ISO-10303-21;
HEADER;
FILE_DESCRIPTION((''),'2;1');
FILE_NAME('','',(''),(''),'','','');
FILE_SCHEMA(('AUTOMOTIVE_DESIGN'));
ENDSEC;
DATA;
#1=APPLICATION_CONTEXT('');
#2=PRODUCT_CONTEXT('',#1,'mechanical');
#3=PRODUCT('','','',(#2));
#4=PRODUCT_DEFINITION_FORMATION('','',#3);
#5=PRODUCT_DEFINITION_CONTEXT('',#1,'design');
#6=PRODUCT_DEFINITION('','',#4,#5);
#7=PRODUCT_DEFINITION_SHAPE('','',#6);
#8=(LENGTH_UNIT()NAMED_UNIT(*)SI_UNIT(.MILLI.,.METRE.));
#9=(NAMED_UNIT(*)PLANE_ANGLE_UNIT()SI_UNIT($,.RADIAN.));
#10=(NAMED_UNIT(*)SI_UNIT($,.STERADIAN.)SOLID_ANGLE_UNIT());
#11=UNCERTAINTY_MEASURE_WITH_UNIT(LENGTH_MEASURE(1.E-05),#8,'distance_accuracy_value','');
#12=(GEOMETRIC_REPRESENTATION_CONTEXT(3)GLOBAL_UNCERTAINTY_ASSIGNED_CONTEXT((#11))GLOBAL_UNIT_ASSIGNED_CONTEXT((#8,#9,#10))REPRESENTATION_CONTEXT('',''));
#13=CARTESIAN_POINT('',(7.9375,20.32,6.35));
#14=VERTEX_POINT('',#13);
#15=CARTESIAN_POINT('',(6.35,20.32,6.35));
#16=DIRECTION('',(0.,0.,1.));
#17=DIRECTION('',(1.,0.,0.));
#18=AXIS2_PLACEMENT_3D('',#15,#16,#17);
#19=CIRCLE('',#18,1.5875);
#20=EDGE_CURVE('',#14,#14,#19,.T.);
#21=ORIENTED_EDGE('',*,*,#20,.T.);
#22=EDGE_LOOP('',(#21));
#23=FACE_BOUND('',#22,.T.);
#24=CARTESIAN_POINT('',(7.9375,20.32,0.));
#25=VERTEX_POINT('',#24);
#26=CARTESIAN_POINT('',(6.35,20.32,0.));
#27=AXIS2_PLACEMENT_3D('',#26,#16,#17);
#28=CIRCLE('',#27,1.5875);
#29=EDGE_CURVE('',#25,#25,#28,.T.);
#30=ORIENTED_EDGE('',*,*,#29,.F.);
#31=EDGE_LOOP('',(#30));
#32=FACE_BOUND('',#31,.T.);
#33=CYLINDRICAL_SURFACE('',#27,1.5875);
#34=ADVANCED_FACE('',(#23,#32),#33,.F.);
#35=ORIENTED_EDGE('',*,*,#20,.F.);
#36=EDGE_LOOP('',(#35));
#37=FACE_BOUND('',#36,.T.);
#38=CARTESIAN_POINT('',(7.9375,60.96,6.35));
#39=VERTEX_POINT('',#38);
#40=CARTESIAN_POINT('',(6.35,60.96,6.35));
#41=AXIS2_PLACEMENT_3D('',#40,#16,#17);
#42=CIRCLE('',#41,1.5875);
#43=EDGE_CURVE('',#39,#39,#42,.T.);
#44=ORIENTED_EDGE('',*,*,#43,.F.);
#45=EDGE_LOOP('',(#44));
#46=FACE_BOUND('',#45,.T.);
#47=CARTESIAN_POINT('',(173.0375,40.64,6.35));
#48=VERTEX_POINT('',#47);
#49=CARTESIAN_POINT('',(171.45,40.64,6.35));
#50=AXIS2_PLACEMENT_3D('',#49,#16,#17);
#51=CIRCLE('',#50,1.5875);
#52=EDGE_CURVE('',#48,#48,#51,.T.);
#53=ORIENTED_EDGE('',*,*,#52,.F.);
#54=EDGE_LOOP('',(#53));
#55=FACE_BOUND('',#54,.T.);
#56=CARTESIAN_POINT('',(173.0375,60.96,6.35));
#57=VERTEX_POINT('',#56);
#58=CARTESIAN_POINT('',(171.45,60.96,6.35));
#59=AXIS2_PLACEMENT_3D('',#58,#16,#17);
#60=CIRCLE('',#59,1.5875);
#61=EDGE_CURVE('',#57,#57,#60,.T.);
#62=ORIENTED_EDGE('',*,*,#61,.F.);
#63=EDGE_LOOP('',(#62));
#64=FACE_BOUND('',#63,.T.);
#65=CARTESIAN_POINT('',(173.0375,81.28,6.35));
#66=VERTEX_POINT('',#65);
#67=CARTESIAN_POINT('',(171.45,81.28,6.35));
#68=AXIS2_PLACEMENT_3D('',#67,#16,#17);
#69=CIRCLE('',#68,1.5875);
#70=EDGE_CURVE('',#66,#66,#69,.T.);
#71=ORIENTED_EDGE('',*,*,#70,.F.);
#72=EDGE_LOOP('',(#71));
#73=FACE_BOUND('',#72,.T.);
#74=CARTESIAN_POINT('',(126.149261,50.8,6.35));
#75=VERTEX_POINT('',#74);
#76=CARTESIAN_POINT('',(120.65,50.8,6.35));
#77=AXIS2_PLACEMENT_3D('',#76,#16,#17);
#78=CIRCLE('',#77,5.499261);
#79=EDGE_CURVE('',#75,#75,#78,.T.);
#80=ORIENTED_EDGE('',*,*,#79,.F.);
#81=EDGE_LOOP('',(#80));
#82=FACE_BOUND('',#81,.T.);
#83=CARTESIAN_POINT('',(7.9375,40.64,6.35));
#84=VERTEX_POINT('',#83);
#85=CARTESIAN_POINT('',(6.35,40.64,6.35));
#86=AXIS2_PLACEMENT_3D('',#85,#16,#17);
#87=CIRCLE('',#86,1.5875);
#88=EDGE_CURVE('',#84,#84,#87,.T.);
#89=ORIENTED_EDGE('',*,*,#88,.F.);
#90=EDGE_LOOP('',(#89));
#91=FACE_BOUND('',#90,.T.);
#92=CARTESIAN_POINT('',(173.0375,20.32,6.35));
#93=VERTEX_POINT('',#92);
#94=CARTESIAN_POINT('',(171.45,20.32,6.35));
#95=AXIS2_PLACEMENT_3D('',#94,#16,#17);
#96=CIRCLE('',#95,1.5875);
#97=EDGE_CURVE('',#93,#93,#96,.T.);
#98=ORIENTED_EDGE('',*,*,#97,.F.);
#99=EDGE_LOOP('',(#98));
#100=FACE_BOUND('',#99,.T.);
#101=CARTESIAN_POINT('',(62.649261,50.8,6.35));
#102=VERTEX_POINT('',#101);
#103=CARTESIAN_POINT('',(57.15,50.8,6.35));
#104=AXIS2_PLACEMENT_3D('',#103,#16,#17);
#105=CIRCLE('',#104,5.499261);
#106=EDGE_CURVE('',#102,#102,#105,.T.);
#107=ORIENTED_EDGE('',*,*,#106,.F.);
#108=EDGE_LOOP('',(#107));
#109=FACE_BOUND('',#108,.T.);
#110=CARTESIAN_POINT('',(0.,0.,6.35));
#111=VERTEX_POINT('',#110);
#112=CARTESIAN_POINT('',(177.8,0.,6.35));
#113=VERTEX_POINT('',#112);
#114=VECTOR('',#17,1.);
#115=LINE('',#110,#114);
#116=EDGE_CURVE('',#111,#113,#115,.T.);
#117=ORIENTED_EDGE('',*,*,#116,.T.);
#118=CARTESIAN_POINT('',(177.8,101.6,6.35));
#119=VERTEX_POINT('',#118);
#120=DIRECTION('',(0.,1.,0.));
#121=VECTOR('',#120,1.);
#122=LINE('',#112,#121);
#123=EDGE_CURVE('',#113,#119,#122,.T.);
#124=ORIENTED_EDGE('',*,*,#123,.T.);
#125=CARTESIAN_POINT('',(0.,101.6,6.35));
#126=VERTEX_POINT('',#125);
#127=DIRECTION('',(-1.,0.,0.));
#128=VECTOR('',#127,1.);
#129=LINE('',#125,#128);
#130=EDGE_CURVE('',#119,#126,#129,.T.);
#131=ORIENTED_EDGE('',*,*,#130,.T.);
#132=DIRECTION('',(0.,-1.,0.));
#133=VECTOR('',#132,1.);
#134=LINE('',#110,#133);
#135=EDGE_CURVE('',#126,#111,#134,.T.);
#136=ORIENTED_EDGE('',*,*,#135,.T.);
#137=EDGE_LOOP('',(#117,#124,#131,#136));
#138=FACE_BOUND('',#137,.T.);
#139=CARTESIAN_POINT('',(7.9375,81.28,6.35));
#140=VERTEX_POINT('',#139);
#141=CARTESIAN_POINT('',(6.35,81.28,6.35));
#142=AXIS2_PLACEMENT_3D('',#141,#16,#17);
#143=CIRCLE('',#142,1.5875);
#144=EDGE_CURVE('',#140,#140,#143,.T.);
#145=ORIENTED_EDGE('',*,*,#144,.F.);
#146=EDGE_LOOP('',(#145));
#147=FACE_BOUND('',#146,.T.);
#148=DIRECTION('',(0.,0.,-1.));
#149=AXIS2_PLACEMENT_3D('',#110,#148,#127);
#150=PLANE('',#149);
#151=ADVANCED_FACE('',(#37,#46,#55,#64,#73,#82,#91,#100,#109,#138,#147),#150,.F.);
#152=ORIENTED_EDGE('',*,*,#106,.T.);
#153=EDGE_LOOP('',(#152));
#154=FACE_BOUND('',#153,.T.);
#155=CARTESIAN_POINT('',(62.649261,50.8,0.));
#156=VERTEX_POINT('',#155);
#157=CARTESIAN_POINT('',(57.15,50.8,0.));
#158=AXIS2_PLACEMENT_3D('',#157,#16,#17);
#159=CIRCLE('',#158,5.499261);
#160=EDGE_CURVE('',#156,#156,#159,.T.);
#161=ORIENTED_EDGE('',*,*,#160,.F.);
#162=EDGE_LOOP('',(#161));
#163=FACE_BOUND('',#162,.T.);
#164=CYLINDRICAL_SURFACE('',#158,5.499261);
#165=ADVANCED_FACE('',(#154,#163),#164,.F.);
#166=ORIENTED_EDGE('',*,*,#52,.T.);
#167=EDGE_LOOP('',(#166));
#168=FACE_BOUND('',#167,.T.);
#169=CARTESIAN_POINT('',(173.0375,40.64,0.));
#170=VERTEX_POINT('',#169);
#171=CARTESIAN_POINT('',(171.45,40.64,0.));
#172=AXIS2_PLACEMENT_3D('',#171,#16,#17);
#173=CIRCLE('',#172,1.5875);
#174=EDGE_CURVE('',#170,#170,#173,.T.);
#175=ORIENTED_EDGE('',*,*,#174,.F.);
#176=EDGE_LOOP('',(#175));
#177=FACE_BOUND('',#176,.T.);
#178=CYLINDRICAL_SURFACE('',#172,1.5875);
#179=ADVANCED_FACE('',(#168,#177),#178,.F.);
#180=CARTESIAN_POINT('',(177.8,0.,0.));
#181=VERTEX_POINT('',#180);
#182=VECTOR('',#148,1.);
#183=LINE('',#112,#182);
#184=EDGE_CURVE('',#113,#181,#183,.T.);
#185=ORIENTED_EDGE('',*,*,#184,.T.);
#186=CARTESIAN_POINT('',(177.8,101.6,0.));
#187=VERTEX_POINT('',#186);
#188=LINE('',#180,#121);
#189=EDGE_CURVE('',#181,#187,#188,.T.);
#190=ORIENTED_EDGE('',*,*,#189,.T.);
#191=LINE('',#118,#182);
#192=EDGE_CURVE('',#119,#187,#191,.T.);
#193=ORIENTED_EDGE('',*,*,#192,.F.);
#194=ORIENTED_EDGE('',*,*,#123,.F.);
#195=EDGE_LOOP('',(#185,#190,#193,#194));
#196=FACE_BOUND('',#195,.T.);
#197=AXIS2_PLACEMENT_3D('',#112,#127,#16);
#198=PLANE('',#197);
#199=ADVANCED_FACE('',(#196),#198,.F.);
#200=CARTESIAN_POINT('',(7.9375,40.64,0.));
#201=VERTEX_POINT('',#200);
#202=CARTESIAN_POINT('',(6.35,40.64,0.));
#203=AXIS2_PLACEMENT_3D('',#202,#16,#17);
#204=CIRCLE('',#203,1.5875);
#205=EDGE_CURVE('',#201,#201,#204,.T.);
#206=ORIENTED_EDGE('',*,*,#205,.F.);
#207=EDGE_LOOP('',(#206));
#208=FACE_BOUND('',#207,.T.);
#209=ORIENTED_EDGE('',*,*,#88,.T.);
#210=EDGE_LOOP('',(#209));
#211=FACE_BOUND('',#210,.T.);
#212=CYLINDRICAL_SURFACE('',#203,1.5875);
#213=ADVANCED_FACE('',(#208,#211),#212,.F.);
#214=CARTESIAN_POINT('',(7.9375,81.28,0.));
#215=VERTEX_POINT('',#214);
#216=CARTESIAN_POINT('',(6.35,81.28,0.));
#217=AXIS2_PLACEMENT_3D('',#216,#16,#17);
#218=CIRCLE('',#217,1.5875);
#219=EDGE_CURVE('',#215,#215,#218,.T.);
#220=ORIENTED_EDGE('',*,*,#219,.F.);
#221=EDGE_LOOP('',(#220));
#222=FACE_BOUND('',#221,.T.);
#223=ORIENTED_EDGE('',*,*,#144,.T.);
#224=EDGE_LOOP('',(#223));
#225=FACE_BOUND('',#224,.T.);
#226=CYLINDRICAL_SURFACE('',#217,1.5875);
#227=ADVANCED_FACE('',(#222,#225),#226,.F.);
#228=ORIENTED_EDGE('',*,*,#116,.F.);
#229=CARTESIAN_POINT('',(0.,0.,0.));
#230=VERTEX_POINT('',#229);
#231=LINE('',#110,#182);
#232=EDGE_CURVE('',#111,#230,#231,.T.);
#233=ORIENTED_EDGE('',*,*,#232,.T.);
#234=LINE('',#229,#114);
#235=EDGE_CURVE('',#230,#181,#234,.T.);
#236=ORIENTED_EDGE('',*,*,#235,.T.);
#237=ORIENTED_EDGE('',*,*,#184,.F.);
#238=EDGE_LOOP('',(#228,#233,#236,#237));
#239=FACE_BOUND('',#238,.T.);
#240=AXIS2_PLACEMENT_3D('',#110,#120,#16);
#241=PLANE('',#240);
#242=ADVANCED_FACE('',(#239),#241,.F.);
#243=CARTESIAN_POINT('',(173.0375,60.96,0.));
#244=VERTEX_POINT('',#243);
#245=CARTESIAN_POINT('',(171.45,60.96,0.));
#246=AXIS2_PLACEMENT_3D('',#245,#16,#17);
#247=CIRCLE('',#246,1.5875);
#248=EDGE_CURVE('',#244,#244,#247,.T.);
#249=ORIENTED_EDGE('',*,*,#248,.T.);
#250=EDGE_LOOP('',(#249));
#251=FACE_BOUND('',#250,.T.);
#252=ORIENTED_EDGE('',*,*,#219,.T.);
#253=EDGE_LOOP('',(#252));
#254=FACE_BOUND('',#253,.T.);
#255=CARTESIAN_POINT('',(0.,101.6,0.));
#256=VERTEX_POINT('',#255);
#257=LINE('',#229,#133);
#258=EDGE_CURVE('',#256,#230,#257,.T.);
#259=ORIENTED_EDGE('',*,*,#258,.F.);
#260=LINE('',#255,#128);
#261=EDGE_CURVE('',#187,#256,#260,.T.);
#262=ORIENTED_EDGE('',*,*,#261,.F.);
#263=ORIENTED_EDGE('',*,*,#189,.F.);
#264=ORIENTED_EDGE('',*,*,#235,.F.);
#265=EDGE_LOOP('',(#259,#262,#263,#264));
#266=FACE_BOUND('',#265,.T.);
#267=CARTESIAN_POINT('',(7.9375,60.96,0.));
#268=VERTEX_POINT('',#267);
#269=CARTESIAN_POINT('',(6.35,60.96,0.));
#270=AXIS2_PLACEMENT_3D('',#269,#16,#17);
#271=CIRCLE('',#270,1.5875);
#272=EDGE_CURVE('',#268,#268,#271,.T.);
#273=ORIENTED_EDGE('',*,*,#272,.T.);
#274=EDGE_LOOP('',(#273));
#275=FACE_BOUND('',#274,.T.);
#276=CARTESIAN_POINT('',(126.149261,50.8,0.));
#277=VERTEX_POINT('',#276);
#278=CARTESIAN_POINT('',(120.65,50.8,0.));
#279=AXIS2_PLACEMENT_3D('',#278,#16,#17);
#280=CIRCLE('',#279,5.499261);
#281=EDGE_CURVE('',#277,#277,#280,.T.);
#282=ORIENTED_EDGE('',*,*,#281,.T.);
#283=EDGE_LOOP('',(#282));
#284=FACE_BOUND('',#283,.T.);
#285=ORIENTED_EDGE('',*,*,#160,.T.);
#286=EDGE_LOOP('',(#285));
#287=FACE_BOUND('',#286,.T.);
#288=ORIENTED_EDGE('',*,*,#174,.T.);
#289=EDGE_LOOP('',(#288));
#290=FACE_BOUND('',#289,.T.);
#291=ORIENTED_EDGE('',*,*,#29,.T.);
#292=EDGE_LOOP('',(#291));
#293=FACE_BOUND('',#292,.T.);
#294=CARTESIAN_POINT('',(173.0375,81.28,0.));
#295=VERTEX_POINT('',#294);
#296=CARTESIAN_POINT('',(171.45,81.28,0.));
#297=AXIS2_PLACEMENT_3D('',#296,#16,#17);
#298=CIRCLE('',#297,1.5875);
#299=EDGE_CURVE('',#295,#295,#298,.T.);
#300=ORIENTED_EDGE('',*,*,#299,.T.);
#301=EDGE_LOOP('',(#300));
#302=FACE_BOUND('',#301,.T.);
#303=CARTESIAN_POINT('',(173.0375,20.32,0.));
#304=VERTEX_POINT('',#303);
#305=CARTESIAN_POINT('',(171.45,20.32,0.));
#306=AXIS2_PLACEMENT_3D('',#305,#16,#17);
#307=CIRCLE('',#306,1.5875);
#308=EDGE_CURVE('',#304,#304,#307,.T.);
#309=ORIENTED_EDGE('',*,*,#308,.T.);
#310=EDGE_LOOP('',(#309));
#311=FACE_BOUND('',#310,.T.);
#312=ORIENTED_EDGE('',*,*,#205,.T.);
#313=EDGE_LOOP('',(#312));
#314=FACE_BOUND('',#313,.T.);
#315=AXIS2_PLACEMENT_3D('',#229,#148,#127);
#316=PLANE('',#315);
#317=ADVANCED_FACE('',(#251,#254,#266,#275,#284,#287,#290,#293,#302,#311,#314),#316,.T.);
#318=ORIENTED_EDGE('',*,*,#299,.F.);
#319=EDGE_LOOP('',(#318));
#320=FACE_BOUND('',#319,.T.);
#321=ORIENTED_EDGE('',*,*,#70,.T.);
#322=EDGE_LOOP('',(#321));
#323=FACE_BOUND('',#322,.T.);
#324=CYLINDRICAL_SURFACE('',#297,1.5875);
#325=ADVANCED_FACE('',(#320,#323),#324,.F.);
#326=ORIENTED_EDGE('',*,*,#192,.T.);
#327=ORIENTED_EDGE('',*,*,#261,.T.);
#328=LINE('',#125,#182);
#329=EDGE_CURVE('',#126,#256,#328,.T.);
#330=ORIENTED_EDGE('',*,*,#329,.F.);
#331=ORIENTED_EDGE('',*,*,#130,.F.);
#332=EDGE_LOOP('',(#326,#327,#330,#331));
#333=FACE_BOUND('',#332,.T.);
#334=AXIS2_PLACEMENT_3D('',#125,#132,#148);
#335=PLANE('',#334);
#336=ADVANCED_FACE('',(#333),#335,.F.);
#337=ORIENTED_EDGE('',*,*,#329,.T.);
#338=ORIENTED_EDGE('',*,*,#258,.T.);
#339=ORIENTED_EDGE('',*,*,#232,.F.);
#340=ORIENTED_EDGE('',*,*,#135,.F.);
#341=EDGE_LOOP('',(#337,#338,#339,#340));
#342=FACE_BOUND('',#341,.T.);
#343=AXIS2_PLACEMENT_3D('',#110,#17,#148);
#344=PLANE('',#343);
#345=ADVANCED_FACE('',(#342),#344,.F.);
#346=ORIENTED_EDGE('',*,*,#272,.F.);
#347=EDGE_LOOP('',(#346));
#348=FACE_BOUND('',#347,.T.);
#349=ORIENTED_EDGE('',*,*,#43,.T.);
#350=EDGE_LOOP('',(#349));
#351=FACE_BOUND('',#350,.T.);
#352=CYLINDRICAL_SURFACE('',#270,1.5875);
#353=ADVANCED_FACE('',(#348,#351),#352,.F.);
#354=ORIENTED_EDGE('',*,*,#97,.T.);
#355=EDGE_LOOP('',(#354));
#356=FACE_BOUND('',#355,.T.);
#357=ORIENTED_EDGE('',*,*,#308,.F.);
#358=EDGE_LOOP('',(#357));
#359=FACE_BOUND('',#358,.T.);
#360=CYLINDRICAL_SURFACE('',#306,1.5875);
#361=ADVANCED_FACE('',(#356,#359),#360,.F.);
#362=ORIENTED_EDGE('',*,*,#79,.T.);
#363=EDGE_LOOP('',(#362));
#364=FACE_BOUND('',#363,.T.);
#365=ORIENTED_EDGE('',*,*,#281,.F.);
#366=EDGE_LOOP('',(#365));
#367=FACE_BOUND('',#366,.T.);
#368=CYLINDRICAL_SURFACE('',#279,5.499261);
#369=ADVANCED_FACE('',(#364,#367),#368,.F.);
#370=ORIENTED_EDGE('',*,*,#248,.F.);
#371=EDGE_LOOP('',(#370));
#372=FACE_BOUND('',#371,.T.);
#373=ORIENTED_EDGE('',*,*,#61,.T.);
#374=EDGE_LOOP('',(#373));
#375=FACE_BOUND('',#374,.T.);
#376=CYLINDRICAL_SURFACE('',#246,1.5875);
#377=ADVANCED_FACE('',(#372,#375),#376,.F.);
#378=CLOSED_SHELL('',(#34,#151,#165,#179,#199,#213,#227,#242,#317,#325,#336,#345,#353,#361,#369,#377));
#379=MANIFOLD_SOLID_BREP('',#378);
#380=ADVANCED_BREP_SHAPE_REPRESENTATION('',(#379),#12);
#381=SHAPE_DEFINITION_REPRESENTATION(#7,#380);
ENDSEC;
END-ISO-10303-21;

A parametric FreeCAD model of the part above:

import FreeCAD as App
import Part
import Sketcher
from FreeCAD import Vector
Q = App.Units.Quantity

doc = App.newDocument("Part")
params = doc.addObject("Spreadsheet::Sheet", "Params")
for row, (alias, value) in enumerate([
    ("sketch1_width", "7 in"),
    ("sketch1_height", "4 in"),
    ("pad1_length", "0.25 in"),
    ("sketch2_diameter", "0.125 in"),
    ("pocket1_length", "0.25 in"),
    ("pocket2_length", "0.25 in"),
], start=1):
    params.set(f"A{row}", alias)
    params.set(f"B{row}", "=" + value)
    params.setAlias(f"B{row}", alias)

body = doc.addObject("PartDesign::Body", "Body")

# Sketch on XY plane
sketch1 = body.newObject("Sketcher::SketchObject", "Sketch")
sketch1.AttachmentSupport = (doc.getObject("XY_Plane"), [""])
sketch1.MapMode = "FlatFace"
sketch1.addGeometry(Part.LineSegment(Vector(0, 102, 0), Vector(0, 0, 0)), False)
sketch1.addGeometry(Part.LineSegment(Vector(0, 0, 0), Vector(178, 0, 0)), False)
sketch1.addGeometry(Part.LineSegment(Vector(178, 0, 0), Vector(178, 102, 0)), False)
sketch1.addGeometry(Part.LineSegment(Vector(178, 102, 0), Vector(0, 102, 0)), False)
sketch1.addConstraint(Sketcher.Constraint("Coincident", 0, 2, 1, 1))
sketch1.addConstraint(Sketcher.Constraint("Coincident", 1, 2, 2, 1))
sketch1.addConstraint(Sketcher.Constraint("Coincident", 2, 2, 3, 1))
sketch1.addConstraint(Sketcher.Constraint("Coincident", 3, 2, 0, 1))
sketch1.addConstraint(Sketcher.Constraint("Vertical", 0))
sketch1.addConstraint(Sketcher.Constraint("Horizontal", 1))
sketch1.addConstraint(Sketcher.Constraint("Vertical", 2))
sketch1.addConstraint(Sketcher.Constraint("Horizontal", 3))
sketch1.addConstraint(Sketcher.Constraint("Coincident", 0, 2, -1, 1))
sketch1.addConstraint(Sketcher.Constraint("DistanceX", 1, 1, 1, 2, Q("7 in")))
sketch1.addConstraint(Sketcher.Constraint("DistanceY", 0, 2, 0, 1, Q("4 in")))
sketch1.setExpression("Constraints[9]", "Params.sketch1_width")
sketch1.setExpression("Constraints[10]", "Params.sketch1_height")
pad1 = body.newObject("PartDesign::Pad", "Pad")
pad1.Profile = sketch1
pad1.setExpression("Length", "Params.pad1_length")

# Sketch on XY plane
sketch2 = body.newObject("Sketcher::SketchObject", "Sketch001")
sketch2.AttachmentSupport = (doc.getObject("XY_Plane"), [""])
sketch2.MapMode = "FlatFace"
sketch2.AttachmentOffset = App.Placement(Vector(0, 0, 0.25 * 25.4), App.Rotation())
sketch2.addGeometry(Part.Circle(Vector(6.3, 81.3, 0), Vector(0, 0, 1), 1.6), False)
sketch2.addGeometry(Part.Circle(Vector(6.3, 61, 0), Vector(0, 0, 1), 1.6), False)
sketch2.addGeometry(Part.Circle(Vector(6.3, 40.6, 0), Vector(0, 0, 1), 1.6), False)
sketch2.addGeometry(Part.Circle(Vector(6.3, 20.3, 0), Vector(0, 0, 1), 1.6), False)
sketch2.addGeometry(Part.Circle(Vector(171.4, 20.3, 0), Vector(0, 0, 1), 1.6), False)
sketch2.addGeometry(Part.Circle(Vector(171.4, 40.6, 0), Vector(0, 0, 1), 1.6), False)
sketch2.addGeometry(Part.Circle(Vector(171.4, 61, 0), Vector(0, 0, 1), 1.6), False)
sketch2.addGeometry(Part.Circle(Vector(171.4, 81.3, 0), Vector(0, 0, 1), 1.6), False)
sketch2.addConstraint(Sketcher.Constraint("Equal", 0, 1))
sketch2.addConstraint(Sketcher.Constraint("Equal", 1, 2))
sketch2.addConstraint(Sketcher.Constraint("Equal", 2, 3))
sketch2.addConstraint(Sketcher.Constraint("Equal", 3, 4))
sketch2.addConstraint(Sketcher.Constraint("Equal", 4, 5))
sketch2.addConstraint(Sketcher.Constraint("Equal", 5, 6))
sketch2.addConstraint(Sketcher.Constraint("Equal", 6, 7))
sketch2.addConstraint(Sketcher.Constraint("Horizontal", 3, 3, 4, 3))
sketch2.addConstraint(Sketcher.Constraint("Horizontal", 2, 3, 5, 3))
sketch2.addConstraint(Sketcher.Constraint("Horizontal", 1, 3, 6, 3))
sketch2.addConstraint(Sketcher.Constraint("Horizontal", 0, 3, 7, 3))
sketch2.addConstraint(Sketcher.Constraint("Vertical", 0, 3, 1, 3))
sketch2.addConstraint(Sketcher.Constraint("Vertical", 1, 3, 2, 3))
sketch2.addConstraint(Sketcher.Constraint("Vertical", 2, 3, 3, 3))
sketch2.addConstraint(Sketcher.Constraint("Vertical", 4, 3, 5, 3))
sketch2.addConstraint(Sketcher.Constraint("Vertical", 5, 3, 6, 3))
sketch2.addConstraint(Sketcher.Constraint("Vertical", 6, 3, 7, 3))
sketch2.addConstraint(Sketcher.Constraint("Diameter", 0, Q("0.125 in")))
sketch2.addConstraint(Sketcher.Constraint("DistanceY", -1, 1, 0, 3, Q("3.2 in")))
sketch2.addConstraint(Sketcher.Constraint("DistanceY", -1, 1, 1, 3, Q("2.4 in")))
sketch2.addConstraint(Sketcher.Constraint("DistanceY", -1, 1, 2, 3, Q("1.6 in")))
sketch2.addConstraint(Sketcher.Constraint("DistanceY", -1, 1, 3, 3, Q("0.8 in")))
sketch2.addConstraint(Sketcher.Constraint("DistanceX", 3, 3, 4, 3, Q("6.5 in")))
sketch2.addConstraint(Sketcher.Constraint("DistanceX", -1, 1, 0, 3, Q("0.25 in")))
sketch2.setExpression("Constraints[17]", "Params.sketch2_diameter")
pocket1 = body.newObject("PartDesign::Pocket", "Pocket")
pocket1.Profile = sketch2
pocket1.setExpression("Length", "Params.pocket1_length")

# Sketch on XY plane
sketch3 = body.newObject("Sketcher::SketchObject", "Sketch002")
sketch3.AttachmentSupport = (doc.getObject("XY_Plane"), [""])
sketch3.MapMode = "FlatFace"
sketch3.AttachmentOffset = App.Placement(Vector(0, 0, 0.25 * 25.4), App.Rotation())
sketch3.addGeometry(Part.Circle(Vector(121, 51, 0), Vector(0, 0, 1), 5), False)
sketch3.addGeometry(Part.Circle(Vector(57, 51, 0), Vector(0, 0, 1), 5), False)
sketch3.addConstraint(Sketcher.Constraint("Equal", 0, 1))
sketch3.addConstraint(Sketcher.Constraint("Horizontal", 0, 3, 1, 3))
sketch3.addConstraint(Sketcher.Constraint("DistanceY", -1, 1, 0, 3, Q("2 in")))
sketch3.addConstraint(Sketcher.Constraint("DistanceX", 1, 3, 0, 3, Q("2.5 in")))
sketch3.addConstraint(Sketcher.Constraint("DistanceX", -1, 1, 0, 3, Q("4.75 in")))
sketch3.addConstraint(Sketcher.Constraint("Diameter", 0, 10.998523))
pocket2 = body.newObject("PartDesign::Pocket", "Pocket001")
pocket2.Profile = sketch3
pocket2.setExpression("Length", "Params.pocket2_length")

doc.recompute()
